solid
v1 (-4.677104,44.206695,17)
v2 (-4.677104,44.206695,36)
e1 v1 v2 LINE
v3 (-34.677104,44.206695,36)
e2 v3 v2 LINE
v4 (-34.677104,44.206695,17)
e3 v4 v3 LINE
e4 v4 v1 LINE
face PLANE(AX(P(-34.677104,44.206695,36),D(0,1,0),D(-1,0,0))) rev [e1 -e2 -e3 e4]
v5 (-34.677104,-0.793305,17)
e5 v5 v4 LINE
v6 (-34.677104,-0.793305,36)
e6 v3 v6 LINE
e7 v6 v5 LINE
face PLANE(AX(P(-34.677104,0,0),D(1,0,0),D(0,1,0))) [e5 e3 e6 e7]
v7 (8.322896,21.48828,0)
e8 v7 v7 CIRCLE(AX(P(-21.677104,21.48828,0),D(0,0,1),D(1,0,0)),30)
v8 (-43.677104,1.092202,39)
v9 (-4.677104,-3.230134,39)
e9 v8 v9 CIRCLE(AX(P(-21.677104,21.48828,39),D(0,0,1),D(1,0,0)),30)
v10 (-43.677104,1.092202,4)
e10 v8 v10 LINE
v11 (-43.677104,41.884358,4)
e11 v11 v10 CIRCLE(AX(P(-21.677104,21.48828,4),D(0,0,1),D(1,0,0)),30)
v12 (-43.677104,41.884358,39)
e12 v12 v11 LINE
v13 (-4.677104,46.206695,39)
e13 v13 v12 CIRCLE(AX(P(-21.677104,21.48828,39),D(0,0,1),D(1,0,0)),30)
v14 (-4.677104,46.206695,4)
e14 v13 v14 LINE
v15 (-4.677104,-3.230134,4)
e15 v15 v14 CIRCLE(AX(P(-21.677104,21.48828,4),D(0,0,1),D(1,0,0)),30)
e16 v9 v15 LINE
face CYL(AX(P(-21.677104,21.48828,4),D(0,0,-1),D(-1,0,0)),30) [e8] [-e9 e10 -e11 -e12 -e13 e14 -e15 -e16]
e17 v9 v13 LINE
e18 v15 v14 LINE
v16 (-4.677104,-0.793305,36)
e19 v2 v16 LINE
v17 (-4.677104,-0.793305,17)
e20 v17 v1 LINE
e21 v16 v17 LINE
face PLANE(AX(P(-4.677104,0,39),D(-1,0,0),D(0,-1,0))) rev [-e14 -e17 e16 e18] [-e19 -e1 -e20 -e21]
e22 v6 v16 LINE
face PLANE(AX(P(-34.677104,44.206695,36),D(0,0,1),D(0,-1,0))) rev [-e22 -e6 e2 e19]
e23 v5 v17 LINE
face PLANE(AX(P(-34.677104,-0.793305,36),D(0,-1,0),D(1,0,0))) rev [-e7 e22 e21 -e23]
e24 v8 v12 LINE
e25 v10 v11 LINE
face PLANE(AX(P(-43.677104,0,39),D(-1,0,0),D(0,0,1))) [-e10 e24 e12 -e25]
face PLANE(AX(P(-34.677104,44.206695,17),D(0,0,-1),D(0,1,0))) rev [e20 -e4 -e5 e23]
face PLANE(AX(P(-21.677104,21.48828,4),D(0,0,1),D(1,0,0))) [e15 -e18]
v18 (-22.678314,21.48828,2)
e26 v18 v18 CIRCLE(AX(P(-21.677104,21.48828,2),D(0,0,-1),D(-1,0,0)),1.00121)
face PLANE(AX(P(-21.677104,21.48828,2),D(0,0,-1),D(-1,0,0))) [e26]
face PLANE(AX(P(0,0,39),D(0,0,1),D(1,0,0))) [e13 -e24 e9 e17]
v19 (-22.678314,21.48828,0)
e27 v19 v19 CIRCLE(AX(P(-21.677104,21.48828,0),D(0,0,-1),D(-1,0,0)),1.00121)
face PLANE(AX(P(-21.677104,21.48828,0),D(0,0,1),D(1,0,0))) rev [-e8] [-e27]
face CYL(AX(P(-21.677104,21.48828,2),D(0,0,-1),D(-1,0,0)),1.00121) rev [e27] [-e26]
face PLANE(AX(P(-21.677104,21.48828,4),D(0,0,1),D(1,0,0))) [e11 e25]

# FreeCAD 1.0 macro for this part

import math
import FreeCAD as App
import Part
import Sketcher
from FreeCAD import Vector
Q = App.Units.Quantity

doc = App.newDocument("Part")
body = doc.addObject("PartDesign::Body", "Body")

# Sketch on XY plane
sketch1 = body.newObject("Sketcher::SketchObject", "Sketch")
sketch1.AttachmentSupport = (doc.getObject("XY_Plane"), [""])
sketch1.MapMode = "FlatFace"
sketch1.addGeometry(Part.Circle(Vector(-22, 21, 0), Vector(0, 0, 1), 30), False)
sketch1.addConstraint([
    Sketcher.Constraint("Diameter", 0, Q("60 mm")),
    Sketcher.Constraint("DistanceY", -1, 1, 0, 3, Q("21.48828 mm")),
    Sketcher.Constraint("DistanceX", 0, 3, -1, 1, Q("21.677104 mm")),
])
pad1 = body.newObject("PartDesign::Pad", "Pad")
pad1.Profile = sketch1
pad1.Length = 4

# Sketch on XY plane
sketch2 = body.newObject("Sketcher::SketchObject", "Sketch001")
sketch2.AttachmentSupport = (doc.getObject("XY_Plane"), [""])
sketch2.MapMode = "FlatFace"
sketch2.AttachmentOffset = App.Placement(Vector(0, 0, 4), App.Rotation())
sketch2.addGeometry([
    Part.LineSegment(Vector(-44, 42, 0), Vector(-44, 1, 0)),
    Part.ArcOfCircle(Part.Circle(Vector(-22, 21, 0), Vector(0, 0, 1), 30), math.radians(-137), math.radians(-55)),
    Part.LineSegment(Vector(-5, -3, 0), Vector(-5, 46, 0)),
    Part.ArcOfCircle(Part.Circle(Vector(-22, 21, 0), Vector(0, 0, 1), 30), math.radians(55), math.radians(137)),
], False)
sketch2.addConstraint([
    Sketcher.Constraint("Coincident", 0, 2, 1, 1),
    Sketcher.Constraint("Coincident", 1, 2, 2, 1),
    Sketcher.Constraint("Coincident", 2, 2, 3, 1),
    Sketcher.Constraint("Coincident", 3, 2, 0, 1),
    Sketcher.Constraint("Vertical", 0),
    Sketcher.Constraint("Vertical", 2),
    Sketcher.Constraint("Coincident", 3, 3, 1, 3),
    Sketcher.Constraint("Equal", 1, 3),
    Sketcher.Constraint("Radius", 1, Q("30 mm")),
    Sketcher.Constraint("DistanceX", 0, 2, 3, 3, Q("22 mm")),
    Sketcher.Constraint("DistanceX", 3, 3, 1, 2, Q("17 mm")),
    Sketcher.Constraint("DistanceY", -1, 1, 1, 3, Q("21.48828 mm")),
    Sketcher.Constraint("DistanceX", 1, 3, -1, 1, Q("21.677104 mm")),
])
pad2 = body.newObject("PartDesign::Pad", "Pad001")
pad2.Profile = sketch2
pad2.Length = 35

# Sketch on YZ plane
sketch3 = body.newObject("Sketcher::SketchObject", "Sketch002")
sketch3.AttachmentSupport = (doc.getObject("YZ_Plane"), [""])
sketch3.MapMode = "FlatFace"
sketch3.AttachmentOffset = App.Placement(Vector(0, 0, -4.677104), App.Rotation())
sketch3.addGeometry([
    Part.LineSegment(Vector(44, 36, 0), Vector(-1, 36, 0)),
    Part.LineSegment(Vector(-1, 36, 0), Vector(-1, 17, 0)),
    Part.LineSegment(Vector(-1, 17, 0), Vector(44, 17, 0)),
    Part.LineSegment(Vector(44, 17, 0), Vector(44, 36, 0)),
], False)
sketch3.addConstraint([
    Sketcher.Constraint("Coincident", 0, 2, 1, 1),
    Sketcher.Constraint("Coincident", 1, 2, 2, 1),
    Sketcher.Constraint("Coincident", 2, 2, 3, 1),
    Sketcher.Constraint("Coincident", 3, 2, 0, 1),
    Sketcher.Constraint("Horizontal", 0),
    Sketcher.Constraint("Vertical", 1),
    Sketcher.Constraint("Horizontal", 2),
    Sketcher.Constraint("Vertical", 3),
    Sketcher.Constraint("DistanceX", 0, 2, 0, 1, Q("45 mm")),
    Sketcher.Constraint("DistanceY", 1, 2, 1, 1, Q("19 mm")),
    Sketcher.Constraint("DistanceY", -1, 1, 0, 2, Q("36 mm")),
    Sketcher.Constraint("DistanceX", 0, 2, -1, 1, Q("0.793305 mm")),
])
pocket1 = body.newObject("PartDesign::Pocket", "Pocket")
pocket1.Profile = sketch3
pocket1.Length = 30

# Sketch on XY plane
sketch4 = body.newObject("Sketcher::SketchObject", "Sketch003")
sketch4.AttachmentSupport = (doc.getObject("XY_Plane"), [""])
sketch4.MapMode = "FlatFace"
sketch4.addGeometry(Part.Circle(Vector(-21.7, 21.5, 0), Vector(0, 0, 1), 1), False)
sketch4.addConstraint([
    Sketcher.Constraint("Diameter", 0, Q("2.002421 mm")),
    Sketcher.Constraint("DistanceY", -1, 1, 0, 3, Q("21.48828 mm")),
    Sketcher.Constraint("DistanceX", 0, 3, -1, 1, Q("21.677104 mm")),
])
pocket2 = body.newObject("PartDesign::Pocket", "Pocket001")
pocket2.Profile = sketch4
pocket2.Length = 2
pocket2.Reversed = True

doc.recompute()
